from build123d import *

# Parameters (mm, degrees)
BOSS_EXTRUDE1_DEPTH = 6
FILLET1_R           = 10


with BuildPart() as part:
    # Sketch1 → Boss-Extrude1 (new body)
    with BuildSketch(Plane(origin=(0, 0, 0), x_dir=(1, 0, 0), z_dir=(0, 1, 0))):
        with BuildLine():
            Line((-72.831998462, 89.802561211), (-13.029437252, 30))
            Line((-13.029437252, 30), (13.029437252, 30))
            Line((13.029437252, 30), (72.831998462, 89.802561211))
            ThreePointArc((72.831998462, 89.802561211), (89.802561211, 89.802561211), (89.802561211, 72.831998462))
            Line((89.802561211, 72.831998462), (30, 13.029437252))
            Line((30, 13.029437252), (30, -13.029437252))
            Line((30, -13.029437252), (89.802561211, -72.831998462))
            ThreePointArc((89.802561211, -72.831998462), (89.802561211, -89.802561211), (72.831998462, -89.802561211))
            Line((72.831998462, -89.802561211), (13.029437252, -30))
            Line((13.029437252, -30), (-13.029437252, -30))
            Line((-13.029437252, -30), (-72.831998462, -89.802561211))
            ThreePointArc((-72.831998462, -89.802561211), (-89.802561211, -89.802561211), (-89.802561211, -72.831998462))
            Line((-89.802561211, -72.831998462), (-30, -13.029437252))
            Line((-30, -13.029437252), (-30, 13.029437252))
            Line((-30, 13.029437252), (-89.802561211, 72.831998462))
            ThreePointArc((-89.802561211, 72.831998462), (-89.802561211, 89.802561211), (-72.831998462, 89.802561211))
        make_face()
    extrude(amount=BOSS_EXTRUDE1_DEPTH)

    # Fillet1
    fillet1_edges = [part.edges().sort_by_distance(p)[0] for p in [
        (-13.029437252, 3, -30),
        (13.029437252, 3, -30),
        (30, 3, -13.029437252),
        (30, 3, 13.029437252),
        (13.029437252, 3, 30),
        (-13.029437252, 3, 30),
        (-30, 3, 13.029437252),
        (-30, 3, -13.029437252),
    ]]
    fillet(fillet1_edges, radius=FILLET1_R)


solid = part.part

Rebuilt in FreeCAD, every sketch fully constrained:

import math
import FreeCAD as App
import Part
import Sketcher
from FreeCAD import Vector


def edges_at(feature, points):
    """Names of the edges that pass closest to the given points."""
    edges = feature.Shape.Edges
    near = lambda p: min(range(len(edges)), key=lambda i: edges[i].distToShape(Part.Vertex(*p))[0])
    return sorted({f"Edge{near(p) + 1}" for p in points})

doc = App.newDocument("Part")
params = doc.addObject("Spreadsheet::Sheet", "Params")
for row, (alias, value) in enumerate([
    ("sketch1_radius", "12 mm"),
    ("pad1_length", "6 mm"),
    ("fillet_radius", "10 mm"),
], start=1):
    params.set(f"A{row}", alias)
    params.set(f"B{row}", "=" + value)
    params.setAlias(f"B{row}", alias)

body = doc.addObject("PartDesign::Body", "Body")

sketch1 = body.newObject("Sketcher::SketchObject", "Sketch")
sketch1.AttachmentSupport = (doc.getObject("XZ_Plane"), [""])
sketch1.MapMode = "FlatFace"
sketch1.addGeometry(Part.LineSegment(Vector(-13, -30, 0), Vector(-73, -90, 0)), False)
sketch1.addGeometry(Part.ArcOfCircle(Part.Circle(Vector(-81, -81, 0), Vector(0, 0, 1), 12), math.radians(135), math.radians(315)), False)
sketch1.addGeometry(Part.LineSegment(Vector(-90, -73, 0), Vector(-30, -13, 0)), False)
sketch1.addGeometry(Part.LineSegment(Vector(-30, -13, 0), Vector(-30, 13, 0)), False)
sketch1.addGeometry(Part.LineSegment(Vector(-30, 13, 0), Vector(-90, 73, 0)), False)
sketch1.addGeometry(Part.ArcOfCircle(Part.Circle(Vector(-81, 81, 0), Vector(0, 0, 1), 12), math.radians(45), math.radians(225)), False)
sketch1.addGeometry(Part.LineSegment(Vector(-73, 90, 0), Vector(-13, 30, 0)), False)
sketch1.addGeometry(Part.LineSegment(Vector(-13, 30, 0), Vector(13, 30, 0)), False)
sketch1.addGeometry(Part.LineSegment(Vector(13, 30, 0), Vector(73, 90, 0)), False)
sketch1.addGeometry(Part.ArcOfCircle(Part.Circle(Vector(81, 81, 0), Vector(0, 0, 1), 12), math.radians(-45), math.radians(135)), False)
sketch1.addGeometry(Part.LineSegment(Vector(90, 73, 0), Vector(30, 13, 0)), False)
sketch1.addGeometry(Part.LineSegment(Vector(30, 13, 0), Vector(30, -13, 0)), False)
sketch1.addGeometry(Part.LineSegment(Vector(30, -13, 0), Vector(90, -73, 0)), False)
sketch1.addGeometry(Part.ArcOfCircle(Part.Circle(Vector(81, -81, 0), Vector(0, 0, 1), 12), math.radians(-135), math.radians(45)), False)
sketch1.addGeometry(Part.LineSegment(Vector(73, -90, 0), Vector(13, -30, 0)), False)
sketch1.addGeometry(Part.LineSegment(Vector(13, -30, 0), Vector(-13, -30, 0)), False)
sketch1.addConstraint(Sketcher.Constraint("Tangent", 0, 2, 1, 2))
sketch1.addConstraint(Sketcher.Constraint("Tangent", 1, 1, 2, 1))
sketch1.addConstraint(Sketcher.Constraint("Coincident", 2, 2, 3, 1))
sketch1.addConstraint(Sketcher.Constraint("Coincident", 3, 2, 4, 1))
sketch1.addConstraint(Sketcher.Constraint("Tangent", 4, 2, 5, 2))
sketch1.addConstraint(Sketcher.Constraint("Tangent", 5, 1, 6, 1))
sketch1.addConstraint(Sketcher.Constraint("Coincident", 6, 2, 7, 1))
sketch1.addConstraint(Sketcher.Constraint("Coincident", 7, 2, 8, 1))
sketch1.addConstraint(Sketcher.Constraint("Tangent", 8, 2, 9, 2))
sketch1.addConstraint(Sketcher.Constraint("Tangent", 9, 1, 10, 1))
sketch1.addConstraint(Sketcher.Constraint("Coincident", 10, 2, 11, 1))
sketch1.addConstraint(Sketcher.Constraint("Coincident", 11, 2, 12, 1))
sketch1.addConstraint(Sketcher.Constraint("Tangent", 12, 2, 13, 2))
sketch1.addConstraint(Sketcher.Constraint("Tangent", 13, 1, 14, 1))
sketch1.addConstraint(Sketcher.Constraint("Coincident", 14, 2, 15, 1))
sketch1.addConstraint(Sketcher.Constraint("Coincident", 15, 2, 0, 1))
sketch1.addConstraint(Sketcher.Constraint("Vertical", 3))
sketch1.addConstraint(Sketcher.Constraint("Horizontal", 7))
sketch1.addConstraint(Sketcher.Constraint("Vertical", 11))
sketch1.addConstraint(Sketcher.Constraint("Horizontal", 15))
sketch1.addConstraint(Sketcher.Constraint("Equal", 1, 5))
sketch1.addConstraint(Sketcher.Constraint("Equal", 5, 9))
sketch1.addConstraint(Sketcher.Constraint("Equal", 9, 13))
sketch1.addConstraint(Sketcher.Constraint("Symmetric", 1, 3, 9, 3, -1, 1))
sketch1.addConstraint(Sketcher.Constraint("Symmetric", 5, 3, 13, 3, -1, 1))
sketch1.addConstraint(Sketcher.Constraint("Symmetric", 2, 2, 10, 2, -1, 1))
sketch1.addConstraint(Sketcher.Constraint("Symmetric", 6, 2, 14, 2, -1, 1))
sketch1.addConstraint(Sketcher.Constraint("Symmetric", 5, 3, 9, 3, -2))
sketch1.addConstraint(Sketcher.Constraint("Parallel", 0, 2))
sketch1.addConstraint(Sketcher.Constraint("Perpendicular", 2, 4))
sketch1.addConstraint(Sketcher.Constraint("Parallel", 4, 6))
sketch1.addConstraint(Sketcher.Constraint("Perpendicular", 6, 8))
sketch1.addConstraint(Sketcher.Constraint("Perpendicular", 10, 12))
sketch1.addConstraint(Sketcher.Constraint("Horizontal", 5, 1, 8, 2))
sketch1.addConstraint(Sketcher.Constraint("Equal", 15, 3))
sketch1.addConstraint(Sketcher.Constraint("Equal", 0, 2))
sketch1.addConstraint(Sketcher.Constraint("Radius", 1, 12.0))
sketch1.addConstraint(Sketcher.Constraint("DistanceX", 2, 2, -1, 1, 30.0))
sketch1.addConstraint(Sketcher.Constraint("DistanceX", 0, 2, -1, 1, 72.831998))
sketch1.setExpression("Constraints[36]", "Params.sketch1_radius")
pad1 = body.newObject("PartDesign::Pad", "Pad")
pad1.Profile = sketch1
pad1.setExpression("Length", "Params.pad1_length")
pad1.Reversed = True
doc.recompute()

fillet = body.newObject("PartDesign::Fillet", "Fillet")
fillet.Base = (pad1, edges_at(pad1, [
    (-13.029, 3, -30),
    (13.029, 3, -30),
    (30, 3, -13.029),
    (30, 3, 13.029),
    (13.029, 3, 30),
    (-13.029, 3, 30),
    (-30, 3, 13.029),
    (-30, 3, -13.029),
]))
fillet.setExpression("Radius", "Params.fillet_radius")

doc.recompute()
